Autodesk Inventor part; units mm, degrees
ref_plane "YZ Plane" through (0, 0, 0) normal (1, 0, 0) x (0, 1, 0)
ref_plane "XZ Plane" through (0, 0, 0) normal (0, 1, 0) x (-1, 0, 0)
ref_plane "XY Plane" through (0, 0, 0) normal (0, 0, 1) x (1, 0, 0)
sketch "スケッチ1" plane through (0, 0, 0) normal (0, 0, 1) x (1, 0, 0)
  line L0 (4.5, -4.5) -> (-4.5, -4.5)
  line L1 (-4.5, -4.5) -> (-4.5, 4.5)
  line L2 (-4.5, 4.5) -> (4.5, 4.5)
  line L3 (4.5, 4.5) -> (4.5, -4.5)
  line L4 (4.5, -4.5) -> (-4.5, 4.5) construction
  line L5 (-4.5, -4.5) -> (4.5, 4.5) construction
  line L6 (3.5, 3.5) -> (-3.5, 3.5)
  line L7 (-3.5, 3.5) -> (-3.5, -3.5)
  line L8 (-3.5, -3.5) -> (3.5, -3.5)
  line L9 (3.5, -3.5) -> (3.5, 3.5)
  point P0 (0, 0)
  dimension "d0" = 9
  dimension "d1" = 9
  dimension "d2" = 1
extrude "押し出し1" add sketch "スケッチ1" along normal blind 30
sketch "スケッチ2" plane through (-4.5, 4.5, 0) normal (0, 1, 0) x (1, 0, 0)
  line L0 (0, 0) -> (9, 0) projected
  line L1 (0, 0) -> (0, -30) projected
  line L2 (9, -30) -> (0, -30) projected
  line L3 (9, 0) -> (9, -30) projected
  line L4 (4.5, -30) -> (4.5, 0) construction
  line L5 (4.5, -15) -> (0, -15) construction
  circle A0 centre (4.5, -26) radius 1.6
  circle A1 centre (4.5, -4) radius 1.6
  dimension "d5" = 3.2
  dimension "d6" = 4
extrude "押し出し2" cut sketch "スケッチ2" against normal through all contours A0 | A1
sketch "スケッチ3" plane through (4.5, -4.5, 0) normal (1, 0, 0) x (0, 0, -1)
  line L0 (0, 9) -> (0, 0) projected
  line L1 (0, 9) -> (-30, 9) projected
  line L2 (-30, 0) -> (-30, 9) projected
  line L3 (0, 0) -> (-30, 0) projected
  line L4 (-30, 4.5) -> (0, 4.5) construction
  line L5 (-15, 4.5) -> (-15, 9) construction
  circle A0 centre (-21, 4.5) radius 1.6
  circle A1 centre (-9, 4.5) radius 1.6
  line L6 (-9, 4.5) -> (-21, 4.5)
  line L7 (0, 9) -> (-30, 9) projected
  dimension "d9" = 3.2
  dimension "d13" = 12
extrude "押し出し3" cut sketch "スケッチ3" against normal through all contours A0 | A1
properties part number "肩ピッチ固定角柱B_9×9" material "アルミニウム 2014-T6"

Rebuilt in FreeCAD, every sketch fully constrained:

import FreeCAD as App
import Part
import Sketcher
from FreeCAD import Vector


def add_polygon(sketch, points):
    """Adds a closed chain of lines whose ends are joined by coincident constraints."""
    first, n = sketch.GeometryCount, len(points)
    for a, b in zip(points, points[1:] + points[:1]):
        sketch.addGeometry(Part.LineSegment(App.Vector(*a, 0), App.Vector(*b, 0)), False)
    for i in range(n):
        sketch.addConstraint(Sketcher.Constraint("Coincident", first + i, 2, first + (i + 1) % n, 1))

doc = App.newDocument("Part")
body = doc.addObject("PartDesign::Body", "Body")

sketch1 = body.newObject("Sketcher::SketchObject", "Sketch")
sketch1.AttachmentSupport = (doc.getObject("XY_Plane"), [""])
sketch1.MapMode = "FlatFace"
add_polygon(sketch1, [(-4, -4), (4, -4), (4, 4), (-4, 4)])
add_polygon(sketch1, [(-4, 4), (4, 4), (4, -4), (-4, -4)])
sketch1.addConstraint([
    Sketcher.Constraint("Horizontal", 0),
    Sketcher.Constraint("Vertical", 1),
    Sketcher.Constraint("Horizontal", 2),
    Sketcher.Constraint("Vertical", 3),
    Sketcher.Constraint("Horizontal", 4),
    Sketcher.Constraint("Vertical", 5),
    Sketcher.Constraint("Horizontal", 6),
    Sketcher.Constraint("Vertical", 7),
    Sketcher.Constraint("Symmetric", 0, 2, 2, 2, -1, 1),
    Sketcher.Constraint("Symmetric", 4, 2, 6, 2, -1, 1),
    Sketcher.Constraint("Equal", 2, 1),
    Sketcher.Constraint("Equal", 6, 5),
    Sketcher.Constraint("DistanceX", 0, 1, 0, 2, 9.0),
    Sketcher.Constraint("DistanceX", 4, 2, 1, 2, 1.0),
])
pad1 = body.newObject("PartDesign::Pad", "Pad")
pad1.Profile = sketch1
pad1.Length = 30

sketch2 = body.newObject("Sketcher::SketchObject", "Sketch001")
sketch2.AttachmentSupport = (doc.getObject("XZ_Plane"), [""])
sketch2.MapMode = "FlatFace"
sketch2.AttachmentOffset = App.Placement(Vector(0, 0, -4.5), App.Rotation())
sketch2.addGeometry([
    Part.Circle(Vector(0, 26, 0), Vector(0, 0, 1), 1.6),
    Part.Circle(Vector(0, 4, 0), Vector(0, 0, 1), 1.6),
], False)
sketch2.addConstraint([
    Sketcher.Constraint("Equal", 0, 1),
    Sketcher.Constraint("PointOnObject", 0, 3, -2),
    Sketcher.Constraint("PointOnObject", 1, 3, -2),
    Sketcher.Constraint("Diameter", 0, 3.2),
    Sketcher.Constraint("DistanceY", -1, 1, 1, 3, 4.0),
    Sketcher.Constraint("DistanceY", -1, 1, 0, 3, 26.0),
])
pocket1 = body.newObject("PartDesign::Pocket", "Pocket")
pocket1.Profile = sketch2
pocket1.Type = "ThroughAll"
pocket1.Reversed = True

sketch3 = body.newObject("Sketcher::SketchObject", "Sketch002")
sketch3.AttachmentSupport = (doc.getObject("YZ_Plane"), [""])
sketch3.MapMode = "FlatFace"
sketch3.AttachmentOffset = App.Placement(Vector(0, 0, 4.5), App.Rotation())
sketch3.addGeometry([
    Part.Circle(Vector(0, 21, 0), Vector(0, 0, 1), 1.6),
    Part.Circle(Vector(0, 9, 0), Vector(0, 0, 1), 1.6),
], False)
sketch3.addConstraint([
    Sketcher.Constraint("Equal", 0, 1),
    Sketcher.Constraint("PointOnObject", 0, 3, -2),
    Sketcher.Constraint("PointOnObject", 1, 3, -2),
    Sketcher.Constraint("Diameter", 0, 3.2),
    Sketcher.Constraint("DistanceY", 1, 3, 0, 3, 12.0),
    Sketcher.Constraint("DistanceY", -1, 1, 0, 3, 21.0),
])
pocket2 = body.newObject("PartDesign::Pocket", "Pocket001")
pocket2.Profile = sketch3
pocket2.Type = "ThroughAll"

doc.recompute()
